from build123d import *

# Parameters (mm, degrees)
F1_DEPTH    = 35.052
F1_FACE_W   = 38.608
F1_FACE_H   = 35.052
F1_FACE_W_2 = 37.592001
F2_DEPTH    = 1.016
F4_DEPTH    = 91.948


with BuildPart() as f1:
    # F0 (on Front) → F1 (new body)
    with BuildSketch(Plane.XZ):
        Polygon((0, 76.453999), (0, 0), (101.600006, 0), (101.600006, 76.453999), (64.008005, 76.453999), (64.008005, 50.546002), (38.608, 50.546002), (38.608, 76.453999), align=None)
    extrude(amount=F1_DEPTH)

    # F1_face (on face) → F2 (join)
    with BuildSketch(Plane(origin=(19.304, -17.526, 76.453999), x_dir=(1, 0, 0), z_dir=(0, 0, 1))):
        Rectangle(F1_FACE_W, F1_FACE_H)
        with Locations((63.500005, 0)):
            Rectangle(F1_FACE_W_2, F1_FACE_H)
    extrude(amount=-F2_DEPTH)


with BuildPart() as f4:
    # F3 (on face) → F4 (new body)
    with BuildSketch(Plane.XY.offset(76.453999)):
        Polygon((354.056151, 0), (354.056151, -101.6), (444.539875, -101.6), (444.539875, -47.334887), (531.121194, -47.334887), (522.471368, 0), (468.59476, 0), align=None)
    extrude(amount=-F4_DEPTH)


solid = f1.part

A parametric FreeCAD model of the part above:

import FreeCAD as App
import Part
import Sketcher
from FreeCAD import Vector
Q = App.Units.Quantity

doc = App.newDocument("Part")
body = doc.addObject("PartDesign::Body", "Body")

# Sketch on XZ plane
sketch1 = body.newObject("Sketcher::SketchObject", "Sketch")
sketch1.AttachmentSupport = (doc.getObject("XZ_Plane"), [""])
sketch1.MapMode = "FlatFace"
sketch1.addGeometry([
    Part.LineSegment(Vector(0, 76, 0), Vector(0, 0, 0)),  # 0
    Part.LineSegment(Vector(0, 0, 0), Vector(102, 0, 0)),  # 1
    Part.LineSegment(Vector(102, 0, 0), Vector(102, 76, 0)),  # 2
    Part.LineSegment(Vector(102, 76, 0), Vector(64, 76, 0)),  # 3
    Part.LineSegment(Vector(64, 76, 0), Vector(64, 51, 0)),  # 4
    Part.LineSegment(Vector(64, 51, 0), Vector(39, 51, 0)),  # 5
    Part.LineSegment(Vector(39, 51, 0), Vector(39, 76, 0)),  # 6
    Part.LineSegment(Vector(39, 76, 0), Vector(0, 76, 0)),  # 7
], False)
sketch1.addConstraint([
    Sketcher.Constraint("Coincident", 0, 2, 1, 1),
    Sketcher.Constraint("Coincident", 1, 2, 2, 1),
    Sketcher.Constraint("Coincident", 2, 2, 3, 1),
    Sketcher.Constraint("Coincident", 3, 2, 4, 1),
    Sketcher.Constraint("Coincident", 4, 2, 5, 1),
    Sketcher.Constraint("Coincident", 5, 2, 6, 1),
    Sketcher.Constraint("Coincident", 6, 2, 7, 1),
    Sketcher.Constraint("Coincident", 7, 2, 0, 1),
    Sketcher.Constraint("Vertical", 0),
    Sketcher.Constraint("Horizontal", 1),
    Sketcher.Constraint("Vertical", 2),
    Sketcher.Constraint("Horizontal", 3),
    Sketcher.Constraint("Vertical", 4),
    Sketcher.Constraint("Horizontal", 5),
    Sketcher.Constraint("Vertical", 6),
    Sketcher.Constraint("Horizontal", 7),
    Sketcher.Constraint("Coincident", 0, 2, -1, 1),
    Sketcher.Constraint("Horizontal", 3, 2, 6, 2),
    Sketcher.Constraint("DistanceX", 5, 2, 5, 1, Q("1.0000002 in")),
    Sketcher.Constraint("DistanceX", 3, 2, 3, 1, Q("1.48 in")),
    Sketcher.Constraint("DistanceX", 7, 2, 7, 1, Q("1.52 in")),
    Sketcher.Constraint("DistanceY", 0, 2, 0, 1, Q("3.01 in")),
    Sketcher.Constraint("DistanceY", 4, 2, 4, 1, Q("1.0199999 in")),
])
pad1 = body.newObject("PartDesign::Pad", "Pad")
pad1.Profile = sketch1
pad1.Length = Q("1.38 in")

# Sketch on XY plane
sketch2 = body.newObject("Sketcher::SketchObject", "Sketch001")
sketch2.AttachmentSupport = (doc.getObject("XY_Plane"), [""])
sketch2.MapMode = "FlatFace"
sketch2.AttachmentOffset = App.Placement(Vector(0, 0, 3.01 * 25.4), App.Rotation())
sketch2.addGeometry([
    Part.LineSegment(Vector(0, 0, 0), Vector(0, -35, 0)),  # 0
    Part.LineSegment(Vector(0, -35, 0), Vector(39, -35, 0)),  # 1
    Part.LineSegment(Vector(39, -35, 0), Vector(39, 0, 0)),  # 2
    Part.LineSegment(Vector(39, 0, 0), Vector(0, 0, 0)),  # 3
    Part.LineSegment(Vector(64, 0, 0), Vector(64, -35, 0)),  # 4
    Part.LineSegment(Vector(64, -35, 0), Vector(102, -35, 0)),  # 5
    Part.LineSegment(Vector(102, -35, 0), Vector(102, 0, 0)),  # 6
    Part.LineSegment(Vector(102, 0, 0), Vector(64, 0, 0)),  # 7
], False)
sketch2.addConstraint([
    Sketcher.Constraint("Coincident", 0, 2, 1, 1),
    Sketcher.Constraint("Coincident", 1, 2, 2, 1),
    Sketcher.Constraint("Coincident", 2, 2, 3, 1),
    Sketcher.Constraint("Coincident", 3, 2, 0, 1),
    Sketcher.Constraint("Coincident", 4, 2, 5, 1),
    Sketcher.Constraint("Coincident", 5, 2, 6, 1),
    Sketcher.Constraint("Coincident", 6, 2, 7, 1),
    Sketcher.Constraint("Coincident", 7, 2, 4, 1),
    Sketcher.Constraint("Vertical", 0),
    Sketcher.Constraint("Horizontal", 1),
    Sketcher.Constraint("Vertical", 2),
    Sketcher.Constraint("Horizontal", 3),
    Sketcher.Constraint("Vertical", 4),
    Sketcher.Constraint("Horizontal", 5),
    Sketcher.Constraint("Vertical", 6),
    Sketcher.Constraint("Horizontal", 7),
    Sketcher.Constraint("Coincident", 3, 2, -1, 1),
    Sketcher.Constraint("PointOnObject", 6, 2, -1),
    Sketcher.Constraint("Horizontal", 1, 2, 4, 2),
    Sketcher.Constraint("DistanceX", 1, 2, 4, 2, Q("1.0000002 in")),
    Sketcher.Constraint("DistanceX", 1, 1, 1, 2, Q("1.52 in")),
    Sketcher.Constraint("DistanceX", 5, 1, 5, 2, Q("1.48 in")),
    Sketcher.Constraint("DistanceY", 0, 2, 0, 1, Q("1.38 in")),
])
pad2 = body.newObject("PartDesign::Pad", "Pad001")
pad2.Profile = sketch2
pad2.Length = Q("0.04 in")
pad2.Reversed = True
body2 = doc.addObject("PartDesign::Body", "Body001")

# Sketch on XY plane
sketch3 = body2.newObject("Sketcher::SketchObject", "Sketch002")
sketch3.AttachmentSupport = (doc.getObject("XY_Plane001"), [""])
sketch3.MapMode = "FlatFace"
sketch3.AttachmentOffset = App.Placement(Vector(0, 0, 3.01 * 25.4), App.Rotation())
sketch3.addGeometry([
    Part.LineSegment(Vector(354, 0, 0), Vector(354, -102, 0)),  # 0
    Part.LineSegment(Vector(354, -102, 0), Vector(445, -102, 0)),  # 1
    Part.LineSegment(Vector(445, -102, 0), Vector(445, -47, 0)),  # 2
    Part.LineSegment(Vector(445, -47, 0), Vector(531, -47, 0)),  # 3
    Part.LineSegment(Vector(531, -47, 0), Vector(522, 0, 0)),  # 4
    Part.LineSegment(Vector(522, 0, 0), Vector(354, 0, 0)),  # 5
], False)
sketch3.addConstraint([
    Sketcher.Constraint("Coincident", 0, 2, 1, 1),
    Sketcher.Constraint("Coincident", 1, 2, 2, 1),
    Sketcher.Constraint("Coincident", 2, 2, 3, 1),
    Sketcher.Constraint("Coincident", 3, 2, 4, 1),
    Sketcher.Constraint("Coincident", 4, 2, 5, 1),
    Sketcher.Constraint("Coincident", 5, 2, 0, 1),
    Sketcher.Constraint("Vertical", 0),
    Sketcher.Constraint("Horizontal", 1),
    Sketcher.Constraint("Vertical", 2),
    Sketcher.Constraint("Horizontal", 3),
    Sketcher.Constraint("Horizontal", 5),
    Sketcher.Constraint("PointOnObject", 4, 2, -1),
    Sketcher.Constraint("DistanceY", 0, 2, 0, 1, Q("4 in")),
    Sketcher.Constraint("DistanceX", 3, 1, 3, 2, 86.581319),
    Sketcher.Constraint("DistanceX", 1, 1, 1, 2, 90.483724),
    Sketcher.Constraint("DistanceX", 5, 2, 5, 1, 168.415217),
    Sketcher.Constraint("DistanceY", 2, 1, 2, 2, 54.265113),
    Sketcher.Constraint("DistanceX", -1, 1, 0, 2, 354.056151),
])
pad3 = body2.newObject("PartDesign::Pad", "Pad002")
pad3.Profile = sketch3
pad3.Length = Q("3.62 in")
pad3.Reversed = True
body2.Visibility = False

doc.recompute()
